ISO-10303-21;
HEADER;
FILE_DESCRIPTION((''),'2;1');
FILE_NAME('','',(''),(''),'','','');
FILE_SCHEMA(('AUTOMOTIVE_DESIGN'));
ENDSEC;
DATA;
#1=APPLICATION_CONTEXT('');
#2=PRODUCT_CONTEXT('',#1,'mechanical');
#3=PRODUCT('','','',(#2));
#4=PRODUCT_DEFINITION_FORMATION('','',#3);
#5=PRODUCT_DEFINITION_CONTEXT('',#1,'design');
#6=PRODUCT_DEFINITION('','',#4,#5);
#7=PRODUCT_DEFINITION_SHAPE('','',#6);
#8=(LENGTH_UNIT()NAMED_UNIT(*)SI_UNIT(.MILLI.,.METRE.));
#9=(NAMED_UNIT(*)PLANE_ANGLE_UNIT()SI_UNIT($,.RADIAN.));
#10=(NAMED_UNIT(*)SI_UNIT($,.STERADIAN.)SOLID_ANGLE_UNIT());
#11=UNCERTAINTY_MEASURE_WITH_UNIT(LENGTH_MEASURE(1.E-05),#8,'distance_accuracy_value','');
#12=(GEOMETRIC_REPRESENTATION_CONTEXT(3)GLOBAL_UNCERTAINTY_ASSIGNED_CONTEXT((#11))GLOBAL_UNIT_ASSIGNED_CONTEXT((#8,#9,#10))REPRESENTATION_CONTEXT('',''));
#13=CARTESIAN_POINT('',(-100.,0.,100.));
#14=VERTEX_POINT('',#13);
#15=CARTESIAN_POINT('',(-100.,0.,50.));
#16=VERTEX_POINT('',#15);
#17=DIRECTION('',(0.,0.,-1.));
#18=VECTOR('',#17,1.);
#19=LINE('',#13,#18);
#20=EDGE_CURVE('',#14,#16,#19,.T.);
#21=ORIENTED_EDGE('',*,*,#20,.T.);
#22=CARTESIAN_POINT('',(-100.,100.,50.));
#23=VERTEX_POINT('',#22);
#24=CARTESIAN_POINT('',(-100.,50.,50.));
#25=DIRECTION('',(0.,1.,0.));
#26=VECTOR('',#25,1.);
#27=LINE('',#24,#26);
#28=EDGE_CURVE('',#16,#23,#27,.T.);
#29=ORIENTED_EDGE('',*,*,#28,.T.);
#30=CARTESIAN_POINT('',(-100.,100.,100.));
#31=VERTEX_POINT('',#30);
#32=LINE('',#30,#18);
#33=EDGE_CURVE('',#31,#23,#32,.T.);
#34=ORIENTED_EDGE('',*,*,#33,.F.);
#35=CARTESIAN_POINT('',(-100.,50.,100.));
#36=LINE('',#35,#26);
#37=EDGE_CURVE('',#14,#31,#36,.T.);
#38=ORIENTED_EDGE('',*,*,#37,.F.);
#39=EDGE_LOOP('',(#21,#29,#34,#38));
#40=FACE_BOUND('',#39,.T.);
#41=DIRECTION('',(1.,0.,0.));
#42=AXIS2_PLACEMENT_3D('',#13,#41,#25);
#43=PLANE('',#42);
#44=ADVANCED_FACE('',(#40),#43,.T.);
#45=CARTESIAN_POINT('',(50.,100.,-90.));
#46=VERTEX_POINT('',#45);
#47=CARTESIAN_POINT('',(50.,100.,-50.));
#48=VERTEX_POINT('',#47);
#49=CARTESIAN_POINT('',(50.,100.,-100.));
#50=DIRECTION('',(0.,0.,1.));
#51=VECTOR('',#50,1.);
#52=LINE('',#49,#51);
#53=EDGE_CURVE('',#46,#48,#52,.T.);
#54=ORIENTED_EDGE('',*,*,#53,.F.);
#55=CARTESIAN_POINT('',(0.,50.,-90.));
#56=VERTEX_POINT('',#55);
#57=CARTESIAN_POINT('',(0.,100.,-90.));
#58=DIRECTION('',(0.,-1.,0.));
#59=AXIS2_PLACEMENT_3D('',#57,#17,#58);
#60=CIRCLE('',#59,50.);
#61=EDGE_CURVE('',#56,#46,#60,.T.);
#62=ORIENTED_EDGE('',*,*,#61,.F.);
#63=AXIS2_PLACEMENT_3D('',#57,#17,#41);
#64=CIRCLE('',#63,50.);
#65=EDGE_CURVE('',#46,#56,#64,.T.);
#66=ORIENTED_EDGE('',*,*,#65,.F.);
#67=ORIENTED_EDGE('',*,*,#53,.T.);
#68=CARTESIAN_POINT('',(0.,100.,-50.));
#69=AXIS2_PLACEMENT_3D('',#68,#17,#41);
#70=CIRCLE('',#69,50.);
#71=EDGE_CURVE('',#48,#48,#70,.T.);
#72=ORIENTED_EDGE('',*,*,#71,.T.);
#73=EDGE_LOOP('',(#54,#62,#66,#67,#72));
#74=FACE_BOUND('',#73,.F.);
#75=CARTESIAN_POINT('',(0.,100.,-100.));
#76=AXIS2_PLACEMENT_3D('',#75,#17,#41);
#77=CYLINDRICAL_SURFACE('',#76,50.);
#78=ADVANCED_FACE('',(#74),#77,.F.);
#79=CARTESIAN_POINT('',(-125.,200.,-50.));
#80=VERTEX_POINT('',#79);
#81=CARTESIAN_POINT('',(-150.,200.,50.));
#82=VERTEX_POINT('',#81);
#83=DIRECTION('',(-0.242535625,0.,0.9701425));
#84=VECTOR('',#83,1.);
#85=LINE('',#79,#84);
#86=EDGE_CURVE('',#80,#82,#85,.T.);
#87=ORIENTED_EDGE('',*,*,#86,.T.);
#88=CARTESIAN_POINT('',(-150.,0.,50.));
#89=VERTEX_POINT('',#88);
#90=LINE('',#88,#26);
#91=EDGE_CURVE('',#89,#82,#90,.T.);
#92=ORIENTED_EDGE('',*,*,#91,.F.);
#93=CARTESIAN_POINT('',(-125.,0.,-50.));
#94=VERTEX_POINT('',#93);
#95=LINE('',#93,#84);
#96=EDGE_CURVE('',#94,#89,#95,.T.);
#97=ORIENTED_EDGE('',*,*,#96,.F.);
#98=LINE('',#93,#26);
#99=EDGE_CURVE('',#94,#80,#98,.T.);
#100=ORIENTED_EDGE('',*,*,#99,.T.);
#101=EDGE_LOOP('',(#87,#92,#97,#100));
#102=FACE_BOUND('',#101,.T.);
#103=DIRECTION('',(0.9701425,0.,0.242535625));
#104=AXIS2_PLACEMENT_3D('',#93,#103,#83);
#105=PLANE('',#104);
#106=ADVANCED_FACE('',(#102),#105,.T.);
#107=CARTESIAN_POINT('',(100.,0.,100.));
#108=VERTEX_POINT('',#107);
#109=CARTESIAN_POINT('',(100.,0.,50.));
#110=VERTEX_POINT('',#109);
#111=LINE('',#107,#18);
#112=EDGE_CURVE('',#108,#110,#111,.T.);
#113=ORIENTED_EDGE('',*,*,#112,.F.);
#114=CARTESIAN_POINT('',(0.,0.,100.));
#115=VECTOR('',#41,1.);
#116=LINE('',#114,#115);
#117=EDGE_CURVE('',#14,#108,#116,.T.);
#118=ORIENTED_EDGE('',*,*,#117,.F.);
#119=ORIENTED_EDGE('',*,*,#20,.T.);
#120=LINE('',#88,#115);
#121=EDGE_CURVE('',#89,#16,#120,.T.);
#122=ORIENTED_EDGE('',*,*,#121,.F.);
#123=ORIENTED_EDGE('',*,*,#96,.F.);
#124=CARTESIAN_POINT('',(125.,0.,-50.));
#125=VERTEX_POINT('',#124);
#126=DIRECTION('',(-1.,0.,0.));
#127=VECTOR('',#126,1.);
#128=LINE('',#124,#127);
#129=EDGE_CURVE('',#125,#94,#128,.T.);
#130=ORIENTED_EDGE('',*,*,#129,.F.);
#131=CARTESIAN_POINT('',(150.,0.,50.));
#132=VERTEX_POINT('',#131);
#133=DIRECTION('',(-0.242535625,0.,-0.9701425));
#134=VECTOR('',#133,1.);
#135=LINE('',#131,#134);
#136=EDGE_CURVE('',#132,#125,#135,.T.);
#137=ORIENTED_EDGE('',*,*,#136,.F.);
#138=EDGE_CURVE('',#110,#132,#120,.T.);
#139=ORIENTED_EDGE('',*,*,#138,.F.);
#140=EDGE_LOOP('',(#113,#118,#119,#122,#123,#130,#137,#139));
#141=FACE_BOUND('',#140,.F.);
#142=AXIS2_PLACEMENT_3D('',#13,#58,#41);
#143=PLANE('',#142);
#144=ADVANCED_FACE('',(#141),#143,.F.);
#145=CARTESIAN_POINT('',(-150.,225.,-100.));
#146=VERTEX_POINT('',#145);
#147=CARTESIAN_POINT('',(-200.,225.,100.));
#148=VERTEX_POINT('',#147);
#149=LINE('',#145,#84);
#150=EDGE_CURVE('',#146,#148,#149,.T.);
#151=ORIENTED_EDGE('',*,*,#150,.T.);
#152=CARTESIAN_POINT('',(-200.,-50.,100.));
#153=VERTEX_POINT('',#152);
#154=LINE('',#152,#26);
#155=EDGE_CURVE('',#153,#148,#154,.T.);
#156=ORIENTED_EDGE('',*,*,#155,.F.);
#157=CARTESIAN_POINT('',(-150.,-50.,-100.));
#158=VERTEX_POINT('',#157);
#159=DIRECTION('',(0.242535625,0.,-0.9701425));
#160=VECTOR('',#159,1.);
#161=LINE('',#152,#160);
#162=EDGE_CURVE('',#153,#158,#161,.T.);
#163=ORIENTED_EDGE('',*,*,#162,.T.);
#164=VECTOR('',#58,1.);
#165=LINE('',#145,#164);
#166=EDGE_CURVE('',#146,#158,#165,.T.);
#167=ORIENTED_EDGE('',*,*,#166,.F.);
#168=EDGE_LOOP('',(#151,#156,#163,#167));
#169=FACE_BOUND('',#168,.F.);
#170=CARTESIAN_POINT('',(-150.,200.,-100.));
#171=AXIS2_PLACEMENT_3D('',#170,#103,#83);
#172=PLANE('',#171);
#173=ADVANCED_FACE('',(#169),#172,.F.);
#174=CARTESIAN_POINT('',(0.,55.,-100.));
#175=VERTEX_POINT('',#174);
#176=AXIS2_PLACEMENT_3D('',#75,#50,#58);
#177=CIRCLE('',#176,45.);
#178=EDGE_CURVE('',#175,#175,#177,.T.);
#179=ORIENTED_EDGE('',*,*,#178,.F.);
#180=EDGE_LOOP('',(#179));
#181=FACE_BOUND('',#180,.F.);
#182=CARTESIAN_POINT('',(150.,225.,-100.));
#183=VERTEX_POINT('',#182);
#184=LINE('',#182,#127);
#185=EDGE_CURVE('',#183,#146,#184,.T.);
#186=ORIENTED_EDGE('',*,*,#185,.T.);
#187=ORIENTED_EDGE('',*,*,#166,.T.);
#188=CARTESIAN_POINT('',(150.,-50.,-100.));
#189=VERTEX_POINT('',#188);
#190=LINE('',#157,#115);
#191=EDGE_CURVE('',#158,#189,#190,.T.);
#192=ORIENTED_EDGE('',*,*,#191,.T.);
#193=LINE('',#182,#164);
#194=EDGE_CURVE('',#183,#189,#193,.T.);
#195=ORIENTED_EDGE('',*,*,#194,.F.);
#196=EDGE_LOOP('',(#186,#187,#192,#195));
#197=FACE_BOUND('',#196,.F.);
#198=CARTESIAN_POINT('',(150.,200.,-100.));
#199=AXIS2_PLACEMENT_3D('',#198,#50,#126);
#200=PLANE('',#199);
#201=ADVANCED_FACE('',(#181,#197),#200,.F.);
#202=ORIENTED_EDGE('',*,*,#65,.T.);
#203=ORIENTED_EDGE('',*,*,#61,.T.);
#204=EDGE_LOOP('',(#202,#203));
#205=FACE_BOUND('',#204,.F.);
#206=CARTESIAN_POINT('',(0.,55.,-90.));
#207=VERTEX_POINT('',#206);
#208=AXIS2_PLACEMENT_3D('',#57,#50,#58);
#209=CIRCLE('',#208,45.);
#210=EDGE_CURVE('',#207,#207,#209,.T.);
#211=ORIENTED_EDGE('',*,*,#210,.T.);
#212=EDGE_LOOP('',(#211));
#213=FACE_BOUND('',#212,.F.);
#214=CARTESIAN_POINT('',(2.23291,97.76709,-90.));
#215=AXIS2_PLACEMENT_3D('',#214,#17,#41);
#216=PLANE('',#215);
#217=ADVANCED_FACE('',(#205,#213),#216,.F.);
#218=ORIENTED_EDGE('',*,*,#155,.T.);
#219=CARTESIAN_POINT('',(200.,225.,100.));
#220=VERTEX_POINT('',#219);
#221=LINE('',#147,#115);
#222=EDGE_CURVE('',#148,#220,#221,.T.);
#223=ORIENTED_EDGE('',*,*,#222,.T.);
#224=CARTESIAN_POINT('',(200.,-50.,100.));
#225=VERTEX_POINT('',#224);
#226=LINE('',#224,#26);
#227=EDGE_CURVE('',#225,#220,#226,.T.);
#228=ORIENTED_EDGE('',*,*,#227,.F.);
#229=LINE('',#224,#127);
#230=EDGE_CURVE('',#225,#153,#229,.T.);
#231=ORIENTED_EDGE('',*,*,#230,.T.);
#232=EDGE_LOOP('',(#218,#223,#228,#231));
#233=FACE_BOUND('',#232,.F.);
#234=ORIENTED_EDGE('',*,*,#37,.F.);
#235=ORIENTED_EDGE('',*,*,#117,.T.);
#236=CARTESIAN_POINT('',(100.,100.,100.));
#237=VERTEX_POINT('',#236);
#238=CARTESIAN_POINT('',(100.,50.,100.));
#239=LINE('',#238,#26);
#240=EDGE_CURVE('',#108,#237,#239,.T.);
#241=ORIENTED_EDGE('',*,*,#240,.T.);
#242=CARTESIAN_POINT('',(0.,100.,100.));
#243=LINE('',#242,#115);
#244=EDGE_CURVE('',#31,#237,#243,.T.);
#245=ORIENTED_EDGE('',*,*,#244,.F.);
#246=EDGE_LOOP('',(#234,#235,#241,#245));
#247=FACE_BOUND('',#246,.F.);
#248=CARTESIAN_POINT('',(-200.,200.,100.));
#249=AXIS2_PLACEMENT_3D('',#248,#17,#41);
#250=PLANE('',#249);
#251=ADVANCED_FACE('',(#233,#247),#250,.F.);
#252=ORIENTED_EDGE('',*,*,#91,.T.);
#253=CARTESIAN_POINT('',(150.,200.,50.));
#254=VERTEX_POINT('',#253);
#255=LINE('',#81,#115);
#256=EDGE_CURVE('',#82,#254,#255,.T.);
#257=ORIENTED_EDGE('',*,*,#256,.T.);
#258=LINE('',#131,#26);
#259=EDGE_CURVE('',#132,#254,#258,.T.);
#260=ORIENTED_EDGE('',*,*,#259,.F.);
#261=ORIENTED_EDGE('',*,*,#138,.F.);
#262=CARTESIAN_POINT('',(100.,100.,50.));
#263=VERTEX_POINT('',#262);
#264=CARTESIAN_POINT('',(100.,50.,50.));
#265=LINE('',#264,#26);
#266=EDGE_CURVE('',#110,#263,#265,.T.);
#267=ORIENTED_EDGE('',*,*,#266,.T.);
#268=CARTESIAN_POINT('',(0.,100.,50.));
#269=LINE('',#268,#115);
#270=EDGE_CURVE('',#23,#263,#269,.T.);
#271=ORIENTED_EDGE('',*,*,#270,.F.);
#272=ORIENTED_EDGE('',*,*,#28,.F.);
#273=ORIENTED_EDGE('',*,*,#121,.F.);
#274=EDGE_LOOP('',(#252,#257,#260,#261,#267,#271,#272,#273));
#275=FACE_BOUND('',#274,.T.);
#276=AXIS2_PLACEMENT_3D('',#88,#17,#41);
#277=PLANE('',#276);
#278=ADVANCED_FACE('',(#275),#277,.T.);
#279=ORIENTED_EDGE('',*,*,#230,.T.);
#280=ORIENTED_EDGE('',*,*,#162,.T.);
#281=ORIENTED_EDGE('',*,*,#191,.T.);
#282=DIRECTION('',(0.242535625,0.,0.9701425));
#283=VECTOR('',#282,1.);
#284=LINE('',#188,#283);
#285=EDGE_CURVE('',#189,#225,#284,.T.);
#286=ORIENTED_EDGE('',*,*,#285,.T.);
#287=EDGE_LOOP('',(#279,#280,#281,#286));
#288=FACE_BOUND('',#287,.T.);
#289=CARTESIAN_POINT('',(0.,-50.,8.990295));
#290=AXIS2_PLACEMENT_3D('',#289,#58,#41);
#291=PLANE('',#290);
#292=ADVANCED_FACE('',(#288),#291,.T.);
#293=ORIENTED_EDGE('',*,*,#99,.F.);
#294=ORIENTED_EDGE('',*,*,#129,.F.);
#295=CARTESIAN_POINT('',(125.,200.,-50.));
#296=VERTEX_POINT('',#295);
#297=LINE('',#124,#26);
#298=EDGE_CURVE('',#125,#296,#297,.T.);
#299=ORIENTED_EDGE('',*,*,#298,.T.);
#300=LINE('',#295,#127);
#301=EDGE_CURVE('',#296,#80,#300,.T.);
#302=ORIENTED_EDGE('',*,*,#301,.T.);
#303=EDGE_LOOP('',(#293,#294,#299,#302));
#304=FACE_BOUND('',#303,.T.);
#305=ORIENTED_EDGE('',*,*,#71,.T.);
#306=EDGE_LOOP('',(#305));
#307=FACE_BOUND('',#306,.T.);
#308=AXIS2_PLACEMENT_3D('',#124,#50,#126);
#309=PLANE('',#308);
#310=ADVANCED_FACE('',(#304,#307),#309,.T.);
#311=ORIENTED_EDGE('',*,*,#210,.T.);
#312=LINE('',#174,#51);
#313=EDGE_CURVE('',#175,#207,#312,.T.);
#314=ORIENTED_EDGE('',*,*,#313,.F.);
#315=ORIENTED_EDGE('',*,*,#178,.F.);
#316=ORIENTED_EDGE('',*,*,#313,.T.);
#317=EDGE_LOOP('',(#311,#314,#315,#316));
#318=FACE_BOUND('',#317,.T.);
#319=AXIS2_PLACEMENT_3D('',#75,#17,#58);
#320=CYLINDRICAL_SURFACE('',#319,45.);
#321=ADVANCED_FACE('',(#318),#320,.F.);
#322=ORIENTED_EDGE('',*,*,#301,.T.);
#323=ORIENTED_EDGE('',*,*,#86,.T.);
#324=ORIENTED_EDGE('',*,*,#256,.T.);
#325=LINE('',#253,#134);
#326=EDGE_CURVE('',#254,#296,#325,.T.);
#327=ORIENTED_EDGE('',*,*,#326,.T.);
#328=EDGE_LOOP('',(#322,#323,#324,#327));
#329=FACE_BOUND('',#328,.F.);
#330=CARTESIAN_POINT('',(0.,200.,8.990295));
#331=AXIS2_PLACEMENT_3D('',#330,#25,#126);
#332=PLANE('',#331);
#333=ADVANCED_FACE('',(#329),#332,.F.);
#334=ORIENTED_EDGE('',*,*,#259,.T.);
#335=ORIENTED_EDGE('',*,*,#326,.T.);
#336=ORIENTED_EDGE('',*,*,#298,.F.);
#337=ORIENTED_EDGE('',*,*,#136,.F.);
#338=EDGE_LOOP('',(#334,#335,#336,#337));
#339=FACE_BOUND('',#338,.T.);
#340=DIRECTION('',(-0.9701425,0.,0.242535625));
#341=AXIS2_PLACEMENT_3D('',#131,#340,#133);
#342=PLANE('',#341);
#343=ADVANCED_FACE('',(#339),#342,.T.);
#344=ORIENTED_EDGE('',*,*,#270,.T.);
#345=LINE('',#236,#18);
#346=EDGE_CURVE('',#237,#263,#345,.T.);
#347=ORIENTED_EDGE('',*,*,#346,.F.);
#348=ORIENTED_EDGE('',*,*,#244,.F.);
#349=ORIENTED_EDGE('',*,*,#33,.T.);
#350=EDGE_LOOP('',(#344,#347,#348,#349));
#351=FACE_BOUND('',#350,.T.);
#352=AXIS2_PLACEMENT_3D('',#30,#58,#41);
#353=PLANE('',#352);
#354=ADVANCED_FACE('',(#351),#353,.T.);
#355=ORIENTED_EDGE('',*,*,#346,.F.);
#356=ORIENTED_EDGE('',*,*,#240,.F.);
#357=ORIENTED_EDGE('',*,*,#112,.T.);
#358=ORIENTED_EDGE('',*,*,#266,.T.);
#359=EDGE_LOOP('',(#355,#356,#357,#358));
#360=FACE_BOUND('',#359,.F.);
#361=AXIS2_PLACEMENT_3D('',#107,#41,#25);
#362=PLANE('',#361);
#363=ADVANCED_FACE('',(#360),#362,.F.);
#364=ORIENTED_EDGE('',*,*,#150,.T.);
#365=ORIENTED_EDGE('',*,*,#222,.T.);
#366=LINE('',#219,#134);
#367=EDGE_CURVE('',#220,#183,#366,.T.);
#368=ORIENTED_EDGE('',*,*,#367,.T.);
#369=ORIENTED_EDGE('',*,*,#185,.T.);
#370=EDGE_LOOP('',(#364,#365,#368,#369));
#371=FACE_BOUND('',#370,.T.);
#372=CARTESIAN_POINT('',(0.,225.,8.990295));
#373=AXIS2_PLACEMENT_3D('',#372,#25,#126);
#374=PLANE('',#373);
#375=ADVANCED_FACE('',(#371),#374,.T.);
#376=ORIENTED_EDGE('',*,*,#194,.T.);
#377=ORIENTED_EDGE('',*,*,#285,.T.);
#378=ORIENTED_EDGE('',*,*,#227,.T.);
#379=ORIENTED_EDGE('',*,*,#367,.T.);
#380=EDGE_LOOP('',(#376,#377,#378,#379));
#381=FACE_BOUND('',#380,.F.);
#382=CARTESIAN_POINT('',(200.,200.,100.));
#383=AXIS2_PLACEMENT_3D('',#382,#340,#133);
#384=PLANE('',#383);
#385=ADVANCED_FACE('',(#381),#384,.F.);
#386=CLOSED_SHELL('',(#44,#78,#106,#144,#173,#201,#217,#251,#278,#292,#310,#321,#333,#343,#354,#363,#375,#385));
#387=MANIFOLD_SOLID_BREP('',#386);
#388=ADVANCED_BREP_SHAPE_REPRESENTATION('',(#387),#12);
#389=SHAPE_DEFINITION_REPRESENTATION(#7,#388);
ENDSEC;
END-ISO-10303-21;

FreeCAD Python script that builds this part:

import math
import FreeCAD as App
import Part
import Sketcher
from FreeCAD import Vector

doc = App.newDocument("Part")
body = doc.addObject("PartDesign::Body", "Body")

sketch1 = body.newObject("Sketcher::SketchObject", "Sketch")
sketch1.AttachmentSupport = (doc.getObject("XZ_Plane"), [""])
sketch1.MapMode = "FlatFace"
sketch1.addGeometry(Part.LineSegment(Vector(200, 100, 0), Vector(-200, 100, 0)), False)
sketch1.addGeometry(Part.LineSegment(Vector(-200, 100, 0), Vector(-150, -100, 0)), False)
sketch1.addGeometry(Part.LineSegment(Vector(-150, -100, 0), Vector(150, -100, 0)), False)
sketch1.addGeometry(Part.LineSegment(Vector(150, -100, 0), Vector(200, 100, 0)), False)
sketch1.addGeometry(Part.LineSegment(Vector(-150, 50, 0), Vector(150, 50, 0)), False)
sketch1.addGeometry(Part.LineSegment(Vector(150, 50, 0), Vector(125, -50, 0)), False)
sketch1.addGeometry(Part.LineSegment(Vector(125, -50, 0), Vector(-125, -50, 0)), False)
sketch1.addGeometry(Part.LineSegment(Vector(-125, -50, 0), Vector(-150, 50, 0)), False)
sketch1.addConstraint(Sketcher.Constraint("Coincident", 0, 2, 1, 1))
sketch1.addConstraint(Sketcher.Constraint("Coincident", 1, 2, 2, 1))
sketch1.addConstraint(Sketcher.Constraint("Coincident", 2, 2, 3, 1))
sketch1.addConstraint(Sketcher.Constraint("Coincident", 3, 2, 0, 1))
sketch1.addConstraint(Sketcher.Constraint("Coincident", 4, 2, 5, 1))
sketch1.addConstraint(Sketcher.Constraint("Coincident", 5, 2, 6, 1))
sketch1.addConstraint(Sketcher.Constraint("Coincident", 6, 2, 7, 1))
sketch1.addConstraint(Sketcher.Constraint("Coincident", 7, 2, 4, 1))
sketch1.addConstraint(Sketcher.Constraint("Horizontal", 0))
sketch1.addConstraint(Sketcher.Constraint("Horizontal", 2))
sketch1.addConstraint(Sketcher.Constraint("Horizontal", 4))
sketch1.addConstraint(Sketcher.Constraint("Horizontal", 6))
sketch1.addConstraint(Sketcher.Constraint("Parallel", 3, 5))
sketch1.addConstraint(Sketcher.Constraint("Parallel", 1, 7))
sketch1.addConstraint(Sketcher.Constraint("Vertical", 2, 2, 4, 2))
sketch1.addConstraint(Sketcher.Constraint("Vertical", 1, 2, 7, 2))
sketch1.addConstraint(Sketcher.Constraint("Equal", 1, 3))
sketch1.addConstraint(Sketcher.Constraint("DistanceX", 0, 2, 0, 1, 400.0))
sketch1.addConstraint(Sketcher.Constraint("DistanceX", 2, 1, 2, 2, 300.0))
sketch1.addConstraint(Sketcher.Constraint("DistanceX", 6, 2, 6, 1, 250.0))
sketch1.addConstraint(Sketcher.Constraint("DistanceX", 0, 2, -1, 1, 200.0))
sketch1.addConstraint(Sketcher.Constraint("DistanceY", -1, 1, 0, 2, 100.0))
sketch1.addConstraint(Sketcher.Constraint("DistanceY", 1, 2, -1, 1, 100.0))
sketch1.addConstraint(Sketcher.Constraint("DistanceY", -1, 1, 4, 2, 50.0))
pad1 = body.newObject("PartDesign::Pad", "Pad")
pad1.Profile = sketch1
pad1.Length = 200
pad1.Reversed = True

sketch2 = body.newObject("Sketcher::SketchObject", "Sketch001")
sketch2.AttachmentSupport = (doc.getObject("XY_Plane"), [""])
sketch2.MapMode = "FlatFace"
sketch2.AttachmentOffset = App.Placement(Vector(0, 0, -100), App.Rotation())
sketch2.addGeometry(Part.Circle(Vector(0, 100, 0), Vector(0, 0, 1), 50), False)
sketch2.addConstraint(Sketcher.Constraint("PointOnObject", 0, 3, -2))
sketch2.addConstraint(Sketcher.Constraint("Diameter", 0, 100.0))
sketch2.addConstraint(Sketcher.Constraint("DistanceY", -1, 1, 0, 3, 100.0))
pocket1 = body.newObject("PartDesign::Pocket", "Pocket")
pocket1.Profile = sketch2
pocket1.Length = 50
pocket1.Reversed = True

sketch3 = body.newObject("Sketcher::SketchObject", "Sketch002")
sketch3.AttachmentSupport = (doc.getObject("XY_Plane"), [""])
sketch3.MapMode = "FlatFace"
sketch3.AttachmentOffset = App.Placement(Vector(0, 0, -100), App.Rotation())
sketch3.addGeometry(Part.ArcOfCircle(Part.Circle(Vector(0, 100, 0), Vector(0, 0, 1), 50), math.radians(-90), math.radians(0)), False)
sketch3.addGeometry(Part.ArcOfCircle(Part.Circle(Vector(0, 100, 0), Vector(0, 0, 1), 50), math.radians(0), math.radians(270)), False)
sketch3.addGeometry(Part.Circle(Vector(0, 100, 0), Vector(0, 0, 1), 45), False)
sketch3.addConstraint(Sketcher.Constraint("Tangent", 0, 1, 1, 2))
sketch3.addConstraint(Sketcher.Constraint("Coincident", 1, 1, 0, 2))
sketch3.addConstraint(Sketcher.Constraint("Coincident", 2, 3, 0, 3))
sketch3.addConstraint(Sketcher.Constraint("PointOnObject", 0, 3, -2))
sketch3.addConstraint(Sketcher.Constraint("PointOnObject", 0, 1, -2))
sketch3.addConstraint(Sketcher.Constraint("Horizontal", 2, 3, 1, 1))
sketch3.addConstraint(Sketcher.Constraint("Diameter", 2, 90.0))
sketch3.addConstraint(Sketcher.Constraint("Radius", 0, 50.0))
sketch3.addConstraint(Sketcher.Constraint("DistanceY", -1, 1, 0, 3, 100.0))
pad2 = body.newObject("PartDesign::Pad", "Pad001")
pad2.Profile = sketch3
pad2.Length = 10

sketch4 = body.newObject("Sketcher::SketchObject", "Sketch003")
sketch4.AttachmentSupport = (doc.getObject("XZ_Plane"), [""])
sketch4.MapMode = "FlatFace"
sketch4.addGeometry(Part.LineSegment(Vector(150, -100, 0), Vector(200, 100, 0)), False)
sketch4.addGeometry(Part.LineSegment(Vector(200, 100, 0), Vector(-200, 100, 0)), False)
sketch4.addGeometry(Part.LineSegment(Vector(-200, 100, 0), Vector(-150, -100, 0)), False)
sketch4.addGeometry(Part.LineSegment(Vector(-150, -100, 0), Vector(150, -100, 0)), False)
sketch4.addConstraint(Sketcher.Constraint("Coincident", 0, 2, 1, 1))
sketch4.addConstraint(Sketcher.Constraint("Coincident", 1, 2, 2, 1))
sketch4.addConstraint(Sketcher.Constraint("Coincident", 2, 2, 3, 1))
sketch4.addConstraint(Sketcher.Constraint("Coincident", 3, 2, 0, 1))
sketch4.addConstraint(Sketcher.Constraint("Horizontal", 1))
sketch4.addConstraint(Sketcher.Constraint("Horizontal", 3))
sketch4.addConstraint(Sketcher.Constraint("Equal", 0, 2))
sketch4.addConstraint(Sketcher.Constraint("DistanceX", 1, 2, 1, 1, 400.0))
sketch4.addConstraint(Sketcher.Constraint("DistanceX", 3, 1, 3, 2, 300.0))
sketch4.addConstraint(Sketcher.Constraint("DistanceX", -1, 1, 0, 2, 200.0))
sketch4.addConstraint(Sketcher.Constraint("DistanceY", -1, 1, 0, 2, 100.0))
sketch4.addConstraint(Sketcher.Constraint("DistanceY", 2, 2, -1, 1, 100.0))
pad3 = body.newObject("PartDesign::Pad", "Pad002")
pad3.Profile = sketch4
pad3.Length = 50

sketch5 = body.newObject("Sketcher::SketchObject", "Sketch004")
sketch5.AttachmentSupport = (doc.getObject("XZ_Plane"), [""])
sketch5.MapMode = "FlatFace"
sketch5.AttachmentOffset = App.Placement(Vector(0, 0, -200), App.Rotation())
sketch5.addGeometry(Part.LineSegment(Vector(-150, -100, 0), Vector(-200, 100, 0)), False)
sketch5.addGeometry(Part.LineSegment(Vector(-200, 100, 0), Vector(200, 100, 0)), False)
sketch5.addGeometry(Part.LineSegment(Vector(200, 100, 0), Vector(150, -100, 0)), False)
sketch5.addGeometry(Part.LineSegment(Vector(150, -100, 0), Vector(-150, -100, 0)), False)
sketch5.addConstraint(Sketcher.Constraint("Coincident", 0, 2, 1, 1))
sketch5.addConstraint(Sketcher.Constraint("Coincident", 1, 2, 2, 1))
sketch5.addConstraint(Sketcher.Constraint("Coincident", 2, 2, 3, 1))
sketch5.addConstraint(Sketcher.Constraint("Coincident", 3, 2, 0, 1))
sketch5.addConstraint(Sketcher.Constraint("Horizontal", 1))
sketch5.addConstraint(Sketcher.Constraint("Horizontal", 3))
sketch5.addConstraint(Sketcher.Constraint("Equal", 0, 2))
sketch5.addConstraint(Sketcher.Constraint("DistanceX", 1, 1, 1, 2, 400.0))
sketch5.addConstraint(Sketcher.Constraint("DistanceX", 3, 2, 3, 1, 300.0))
sketch5.addConstraint(Sketcher.Constraint("DistanceX", 0, 2, -1, 1, 200.0))
sketch5.addConstraint(Sketcher.Constraint("DistanceY", -1, 1, 0, 2, 100.0))
sketch5.addConstraint(Sketcher.Constraint("DistanceY", 2, 2, -1, 1, 100.0))
pad4 = body.newObject("PartDesign::Pad", "Pad003")
pad4.Profile = sketch5
pad4.Length = 25
pad4.Reversed = True

sketch6 = body.newObject("Sketcher::SketchObject", "Sketch005")
sketch6.AttachmentSupport = (doc.getObject("XY_Plane"), [""])
sketch6.MapMode = "FlatFace"
sketch6.AttachmentOffset = App.Placement(Vector(0, 0, 100), App.Rotation())
sketch6.addGeometry(Part.LineSegment(Vector(-100, 100, 0), Vector(-100, 0, 0)), False)
sketch6.addGeometry(Part.LineSegment(Vector(-100, 0, 0), Vector(100, 0, 0)), False)
sketch6.addGeometry(Part.LineSegment(Vector(100, 0, 0), Vector(100, 100, 0)), False)
sketch6.addGeometry(Part.LineSegment(Vector(100, 100, 0), Vector(-100, 100, 0)), False)
sketch6.addConstraint(Sketcher.Constraint("Coincident", 0, 2, 1, 1))
sketch6.addConstraint(Sketcher.Constraint("Coincident", 1, 2, 2, 1))
sketch6.addConstraint(Sketcher.Constraint("Coincident", 2, 2, 3, 1))
sketch6.addConstraint(Sketcher.Constraint("Coincident", 3, 2, 0, 1))
sketch6.addConstraint(Sketcher.Constraint("Vertical", 0))
sketch6.addConstraint(Sketcher.Constraint("Horizontal", 1))
sketch6.addConstraint(Sketcher.Constraint("Vertical", 2))
sketch6.addConstraint(Sketcher.Constraint("Horizontal", 3))
sketch6.addConstraint(Sketcher.Constraint("Symmetric", 0, 2, 1, 2, -1, 1))
sketch6.addConstraint(Sketcher.Constraint("DistanceX", 1, 1, 1, 2, 200.0))
sketch6.addConstraint(Sketcher.Constraint("DistanceY", 0, 2, 0, 1, 100.0))
pocket2 = body.newObject("PartDesign::Pocket", "Pocket001")
pocket2.Profile = sketch6
pocket2.Length = 50

doc.recompute()
